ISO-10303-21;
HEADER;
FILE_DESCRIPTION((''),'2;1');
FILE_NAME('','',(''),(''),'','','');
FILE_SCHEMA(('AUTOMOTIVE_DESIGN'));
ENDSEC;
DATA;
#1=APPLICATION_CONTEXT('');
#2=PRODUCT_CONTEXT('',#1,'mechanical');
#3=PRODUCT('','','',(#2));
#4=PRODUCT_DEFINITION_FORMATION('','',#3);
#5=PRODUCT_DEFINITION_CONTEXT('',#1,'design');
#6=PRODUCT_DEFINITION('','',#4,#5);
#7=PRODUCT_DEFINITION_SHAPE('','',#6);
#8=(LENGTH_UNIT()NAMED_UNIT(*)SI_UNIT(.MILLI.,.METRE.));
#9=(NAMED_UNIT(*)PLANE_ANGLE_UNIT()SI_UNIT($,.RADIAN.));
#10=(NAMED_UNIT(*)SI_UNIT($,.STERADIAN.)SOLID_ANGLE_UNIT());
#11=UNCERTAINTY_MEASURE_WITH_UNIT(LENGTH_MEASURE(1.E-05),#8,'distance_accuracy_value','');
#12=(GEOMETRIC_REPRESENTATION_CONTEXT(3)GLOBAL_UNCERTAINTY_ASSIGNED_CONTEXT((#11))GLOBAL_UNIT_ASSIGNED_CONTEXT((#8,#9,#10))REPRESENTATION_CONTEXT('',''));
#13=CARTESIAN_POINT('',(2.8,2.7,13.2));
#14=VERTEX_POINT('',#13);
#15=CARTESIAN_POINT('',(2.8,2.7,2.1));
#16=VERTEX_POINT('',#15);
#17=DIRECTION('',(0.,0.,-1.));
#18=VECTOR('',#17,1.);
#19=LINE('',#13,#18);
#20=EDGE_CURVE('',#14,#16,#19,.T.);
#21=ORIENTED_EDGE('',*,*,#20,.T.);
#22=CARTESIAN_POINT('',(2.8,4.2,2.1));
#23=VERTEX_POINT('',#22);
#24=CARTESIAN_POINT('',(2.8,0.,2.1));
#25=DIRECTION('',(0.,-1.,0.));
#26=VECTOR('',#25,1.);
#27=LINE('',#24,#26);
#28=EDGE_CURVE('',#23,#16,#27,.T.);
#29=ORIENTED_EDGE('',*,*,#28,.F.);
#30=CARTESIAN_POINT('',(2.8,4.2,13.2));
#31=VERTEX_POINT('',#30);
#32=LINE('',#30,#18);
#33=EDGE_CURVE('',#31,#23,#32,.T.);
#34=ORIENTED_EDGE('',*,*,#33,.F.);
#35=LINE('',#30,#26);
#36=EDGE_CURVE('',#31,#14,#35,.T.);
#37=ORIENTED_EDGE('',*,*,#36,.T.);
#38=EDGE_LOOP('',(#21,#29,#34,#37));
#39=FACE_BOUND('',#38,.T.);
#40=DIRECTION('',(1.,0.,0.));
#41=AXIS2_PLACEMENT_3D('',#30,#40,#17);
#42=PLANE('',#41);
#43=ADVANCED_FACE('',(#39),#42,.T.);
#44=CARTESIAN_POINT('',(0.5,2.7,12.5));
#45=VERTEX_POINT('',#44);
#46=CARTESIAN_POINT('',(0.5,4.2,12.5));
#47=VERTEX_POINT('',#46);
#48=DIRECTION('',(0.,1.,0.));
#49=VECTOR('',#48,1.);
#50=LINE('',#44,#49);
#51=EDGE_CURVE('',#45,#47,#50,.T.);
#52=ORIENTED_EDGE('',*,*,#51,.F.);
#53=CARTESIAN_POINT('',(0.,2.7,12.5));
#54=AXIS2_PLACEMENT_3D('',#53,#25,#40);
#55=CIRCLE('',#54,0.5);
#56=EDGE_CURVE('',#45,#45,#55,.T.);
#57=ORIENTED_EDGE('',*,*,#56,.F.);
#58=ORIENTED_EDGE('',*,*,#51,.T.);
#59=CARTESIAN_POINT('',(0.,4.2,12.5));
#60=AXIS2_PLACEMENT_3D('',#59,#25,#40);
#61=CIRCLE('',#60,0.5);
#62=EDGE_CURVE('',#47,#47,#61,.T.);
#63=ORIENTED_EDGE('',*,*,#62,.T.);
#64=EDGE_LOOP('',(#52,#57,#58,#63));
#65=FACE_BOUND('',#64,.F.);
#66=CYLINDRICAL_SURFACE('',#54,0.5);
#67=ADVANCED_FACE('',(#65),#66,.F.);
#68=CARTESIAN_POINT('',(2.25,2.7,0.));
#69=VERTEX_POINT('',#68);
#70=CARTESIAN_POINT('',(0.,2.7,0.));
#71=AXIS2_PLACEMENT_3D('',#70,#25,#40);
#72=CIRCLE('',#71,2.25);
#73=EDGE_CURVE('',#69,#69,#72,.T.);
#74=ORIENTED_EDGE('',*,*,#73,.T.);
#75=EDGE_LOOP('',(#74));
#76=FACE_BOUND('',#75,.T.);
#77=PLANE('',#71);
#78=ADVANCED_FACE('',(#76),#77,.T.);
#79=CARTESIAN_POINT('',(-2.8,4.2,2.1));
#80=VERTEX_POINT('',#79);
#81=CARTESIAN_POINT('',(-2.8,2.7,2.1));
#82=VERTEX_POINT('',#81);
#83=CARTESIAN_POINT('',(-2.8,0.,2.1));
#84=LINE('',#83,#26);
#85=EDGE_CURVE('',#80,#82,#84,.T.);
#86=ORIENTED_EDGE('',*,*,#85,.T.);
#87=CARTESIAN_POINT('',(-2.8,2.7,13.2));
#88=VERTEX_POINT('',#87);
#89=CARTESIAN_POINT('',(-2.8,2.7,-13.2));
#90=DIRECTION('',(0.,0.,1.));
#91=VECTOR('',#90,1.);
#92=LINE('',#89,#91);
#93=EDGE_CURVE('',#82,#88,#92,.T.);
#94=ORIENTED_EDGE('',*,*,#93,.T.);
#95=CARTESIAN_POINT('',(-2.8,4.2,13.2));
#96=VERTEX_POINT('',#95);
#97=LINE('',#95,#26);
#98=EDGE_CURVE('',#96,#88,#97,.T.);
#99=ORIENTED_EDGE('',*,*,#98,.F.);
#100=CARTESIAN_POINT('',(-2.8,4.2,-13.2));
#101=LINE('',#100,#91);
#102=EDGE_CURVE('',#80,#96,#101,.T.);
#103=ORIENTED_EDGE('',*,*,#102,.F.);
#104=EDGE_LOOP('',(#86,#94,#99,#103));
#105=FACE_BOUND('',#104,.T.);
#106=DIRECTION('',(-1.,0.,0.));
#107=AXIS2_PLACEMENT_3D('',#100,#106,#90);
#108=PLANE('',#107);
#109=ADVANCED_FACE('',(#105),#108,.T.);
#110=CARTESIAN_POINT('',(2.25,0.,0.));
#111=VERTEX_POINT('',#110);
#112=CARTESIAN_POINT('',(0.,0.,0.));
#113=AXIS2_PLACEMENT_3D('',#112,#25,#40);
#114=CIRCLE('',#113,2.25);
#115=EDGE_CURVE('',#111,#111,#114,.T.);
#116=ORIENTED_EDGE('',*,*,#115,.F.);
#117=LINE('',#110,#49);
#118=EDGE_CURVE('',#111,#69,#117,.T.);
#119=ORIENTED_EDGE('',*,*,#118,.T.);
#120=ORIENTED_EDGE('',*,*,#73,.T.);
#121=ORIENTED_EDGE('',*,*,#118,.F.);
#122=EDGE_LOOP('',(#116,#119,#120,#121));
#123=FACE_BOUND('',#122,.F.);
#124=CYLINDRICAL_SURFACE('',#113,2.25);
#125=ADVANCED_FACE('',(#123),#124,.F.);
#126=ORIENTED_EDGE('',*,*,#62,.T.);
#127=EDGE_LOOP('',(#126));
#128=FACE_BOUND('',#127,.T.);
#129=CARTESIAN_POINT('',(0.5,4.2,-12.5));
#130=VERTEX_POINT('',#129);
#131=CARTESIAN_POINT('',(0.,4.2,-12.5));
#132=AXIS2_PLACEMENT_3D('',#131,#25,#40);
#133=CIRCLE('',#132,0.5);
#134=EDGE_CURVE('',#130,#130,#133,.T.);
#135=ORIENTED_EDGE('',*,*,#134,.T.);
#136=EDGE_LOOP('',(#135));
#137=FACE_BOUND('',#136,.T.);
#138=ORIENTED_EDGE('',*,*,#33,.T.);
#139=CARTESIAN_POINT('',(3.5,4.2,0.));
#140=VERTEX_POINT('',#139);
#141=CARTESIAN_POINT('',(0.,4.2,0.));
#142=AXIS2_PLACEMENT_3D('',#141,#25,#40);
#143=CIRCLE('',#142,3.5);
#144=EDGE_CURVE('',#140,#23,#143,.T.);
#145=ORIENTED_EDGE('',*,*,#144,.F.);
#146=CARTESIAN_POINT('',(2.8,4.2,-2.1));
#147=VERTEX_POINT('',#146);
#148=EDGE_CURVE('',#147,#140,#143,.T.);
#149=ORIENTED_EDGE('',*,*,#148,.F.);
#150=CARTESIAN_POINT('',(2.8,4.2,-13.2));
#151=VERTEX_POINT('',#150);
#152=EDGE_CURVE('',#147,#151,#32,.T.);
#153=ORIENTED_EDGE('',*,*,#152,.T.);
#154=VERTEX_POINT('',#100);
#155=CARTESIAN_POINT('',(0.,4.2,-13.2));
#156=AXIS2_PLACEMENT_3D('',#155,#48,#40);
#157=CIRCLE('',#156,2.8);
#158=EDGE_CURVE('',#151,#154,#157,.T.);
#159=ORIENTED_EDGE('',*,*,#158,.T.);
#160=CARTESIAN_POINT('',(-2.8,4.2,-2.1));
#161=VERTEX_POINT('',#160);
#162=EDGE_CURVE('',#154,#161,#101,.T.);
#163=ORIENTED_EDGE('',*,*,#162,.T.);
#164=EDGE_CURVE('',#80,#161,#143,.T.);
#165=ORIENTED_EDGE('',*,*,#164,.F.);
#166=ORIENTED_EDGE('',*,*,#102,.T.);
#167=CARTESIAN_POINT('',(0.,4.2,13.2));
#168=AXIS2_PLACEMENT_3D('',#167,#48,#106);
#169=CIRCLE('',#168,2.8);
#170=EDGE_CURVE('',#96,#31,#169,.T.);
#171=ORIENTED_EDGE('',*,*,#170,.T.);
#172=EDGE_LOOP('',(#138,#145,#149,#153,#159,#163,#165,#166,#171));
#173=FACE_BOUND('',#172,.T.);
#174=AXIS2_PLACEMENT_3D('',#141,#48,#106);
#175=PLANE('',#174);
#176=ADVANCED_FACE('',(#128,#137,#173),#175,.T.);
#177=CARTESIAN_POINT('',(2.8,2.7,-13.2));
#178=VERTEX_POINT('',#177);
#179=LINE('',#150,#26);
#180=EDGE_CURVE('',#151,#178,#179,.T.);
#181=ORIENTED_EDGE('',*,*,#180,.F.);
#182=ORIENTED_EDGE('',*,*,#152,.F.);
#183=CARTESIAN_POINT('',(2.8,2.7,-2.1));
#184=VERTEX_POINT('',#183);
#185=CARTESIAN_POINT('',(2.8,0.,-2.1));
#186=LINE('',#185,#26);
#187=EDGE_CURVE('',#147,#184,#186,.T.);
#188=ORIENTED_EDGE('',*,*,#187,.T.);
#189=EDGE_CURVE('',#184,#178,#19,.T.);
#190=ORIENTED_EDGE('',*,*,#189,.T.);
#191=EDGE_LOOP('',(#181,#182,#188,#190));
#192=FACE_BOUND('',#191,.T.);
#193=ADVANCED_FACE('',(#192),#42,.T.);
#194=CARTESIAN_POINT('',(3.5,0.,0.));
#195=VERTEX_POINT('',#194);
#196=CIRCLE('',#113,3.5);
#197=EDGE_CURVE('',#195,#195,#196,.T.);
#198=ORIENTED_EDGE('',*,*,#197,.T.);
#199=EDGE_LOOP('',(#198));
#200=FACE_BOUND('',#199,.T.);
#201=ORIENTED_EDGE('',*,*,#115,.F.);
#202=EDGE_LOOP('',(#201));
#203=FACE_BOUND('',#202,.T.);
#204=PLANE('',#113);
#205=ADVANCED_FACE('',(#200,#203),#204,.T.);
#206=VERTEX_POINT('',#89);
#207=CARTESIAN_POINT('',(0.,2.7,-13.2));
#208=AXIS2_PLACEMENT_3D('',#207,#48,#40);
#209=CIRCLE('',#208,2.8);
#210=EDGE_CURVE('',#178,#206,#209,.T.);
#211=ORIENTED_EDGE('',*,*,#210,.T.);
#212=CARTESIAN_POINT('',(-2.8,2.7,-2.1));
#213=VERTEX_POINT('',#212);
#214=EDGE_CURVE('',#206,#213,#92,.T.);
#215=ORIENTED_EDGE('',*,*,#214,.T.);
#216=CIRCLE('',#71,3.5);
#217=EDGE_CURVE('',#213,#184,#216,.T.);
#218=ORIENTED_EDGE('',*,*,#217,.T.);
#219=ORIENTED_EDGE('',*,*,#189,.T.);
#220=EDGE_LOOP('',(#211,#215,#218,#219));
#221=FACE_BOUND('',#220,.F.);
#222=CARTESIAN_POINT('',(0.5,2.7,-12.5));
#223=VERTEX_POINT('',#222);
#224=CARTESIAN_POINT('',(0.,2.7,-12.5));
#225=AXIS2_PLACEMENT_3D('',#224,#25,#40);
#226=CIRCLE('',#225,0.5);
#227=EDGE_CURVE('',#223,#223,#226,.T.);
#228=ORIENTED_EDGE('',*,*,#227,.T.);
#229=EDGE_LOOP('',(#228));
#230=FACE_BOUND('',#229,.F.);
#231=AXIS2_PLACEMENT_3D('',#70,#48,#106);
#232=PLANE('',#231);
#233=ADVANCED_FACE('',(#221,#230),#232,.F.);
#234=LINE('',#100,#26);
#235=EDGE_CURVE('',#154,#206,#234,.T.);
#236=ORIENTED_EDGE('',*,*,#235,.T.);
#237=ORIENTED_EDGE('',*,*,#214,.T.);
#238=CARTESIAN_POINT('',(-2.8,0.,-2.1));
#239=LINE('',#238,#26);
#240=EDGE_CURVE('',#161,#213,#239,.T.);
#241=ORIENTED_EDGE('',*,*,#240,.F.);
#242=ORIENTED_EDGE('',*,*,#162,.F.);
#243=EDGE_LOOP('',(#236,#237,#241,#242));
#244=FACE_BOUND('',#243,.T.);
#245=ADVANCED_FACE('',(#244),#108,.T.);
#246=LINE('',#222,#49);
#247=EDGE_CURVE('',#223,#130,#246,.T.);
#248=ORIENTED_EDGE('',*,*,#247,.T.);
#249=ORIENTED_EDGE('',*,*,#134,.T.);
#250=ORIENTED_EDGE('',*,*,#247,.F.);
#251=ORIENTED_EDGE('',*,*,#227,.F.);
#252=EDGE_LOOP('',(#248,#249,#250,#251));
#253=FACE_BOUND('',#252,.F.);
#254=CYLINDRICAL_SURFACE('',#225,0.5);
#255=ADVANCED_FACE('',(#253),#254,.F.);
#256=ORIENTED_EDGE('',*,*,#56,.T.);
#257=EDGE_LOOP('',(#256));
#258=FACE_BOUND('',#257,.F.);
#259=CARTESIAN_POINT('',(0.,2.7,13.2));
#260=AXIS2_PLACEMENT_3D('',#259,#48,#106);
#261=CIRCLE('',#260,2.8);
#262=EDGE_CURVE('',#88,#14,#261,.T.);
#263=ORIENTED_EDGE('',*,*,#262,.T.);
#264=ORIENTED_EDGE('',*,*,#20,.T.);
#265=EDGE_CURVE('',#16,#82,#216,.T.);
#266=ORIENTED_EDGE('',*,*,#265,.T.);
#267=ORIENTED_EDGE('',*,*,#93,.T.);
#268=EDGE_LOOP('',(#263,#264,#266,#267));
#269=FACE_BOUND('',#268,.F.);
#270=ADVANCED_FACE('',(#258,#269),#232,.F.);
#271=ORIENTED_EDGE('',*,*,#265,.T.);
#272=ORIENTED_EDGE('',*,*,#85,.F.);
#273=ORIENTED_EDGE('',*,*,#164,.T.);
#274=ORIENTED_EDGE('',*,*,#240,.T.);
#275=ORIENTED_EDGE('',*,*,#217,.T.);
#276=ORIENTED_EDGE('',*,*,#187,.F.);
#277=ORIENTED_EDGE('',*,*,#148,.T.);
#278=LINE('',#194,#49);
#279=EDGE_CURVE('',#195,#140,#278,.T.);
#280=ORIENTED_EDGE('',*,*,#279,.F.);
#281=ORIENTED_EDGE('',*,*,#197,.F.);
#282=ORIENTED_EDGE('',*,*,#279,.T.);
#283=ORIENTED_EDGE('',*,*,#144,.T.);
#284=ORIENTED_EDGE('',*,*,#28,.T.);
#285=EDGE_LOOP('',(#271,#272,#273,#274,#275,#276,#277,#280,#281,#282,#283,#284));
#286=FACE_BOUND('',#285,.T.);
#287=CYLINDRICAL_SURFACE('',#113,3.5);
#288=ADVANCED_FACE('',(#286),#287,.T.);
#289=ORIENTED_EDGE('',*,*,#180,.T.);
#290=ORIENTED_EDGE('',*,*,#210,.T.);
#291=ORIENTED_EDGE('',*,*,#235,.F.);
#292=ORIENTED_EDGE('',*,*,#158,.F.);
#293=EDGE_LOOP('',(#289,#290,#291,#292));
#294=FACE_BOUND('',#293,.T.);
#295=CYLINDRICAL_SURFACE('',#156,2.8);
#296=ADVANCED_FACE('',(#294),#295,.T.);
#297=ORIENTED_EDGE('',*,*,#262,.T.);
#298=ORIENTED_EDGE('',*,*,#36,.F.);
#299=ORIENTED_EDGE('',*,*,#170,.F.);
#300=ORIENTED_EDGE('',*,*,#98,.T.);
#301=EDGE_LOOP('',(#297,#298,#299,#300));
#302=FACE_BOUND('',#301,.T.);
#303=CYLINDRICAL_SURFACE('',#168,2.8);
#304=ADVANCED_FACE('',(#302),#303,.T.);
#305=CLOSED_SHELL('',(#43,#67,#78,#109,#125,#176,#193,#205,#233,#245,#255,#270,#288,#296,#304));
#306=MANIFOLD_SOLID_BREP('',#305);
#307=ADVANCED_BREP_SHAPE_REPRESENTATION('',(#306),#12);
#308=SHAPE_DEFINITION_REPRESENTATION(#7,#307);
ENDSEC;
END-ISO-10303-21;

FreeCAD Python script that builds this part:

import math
import FreeCAD as App
import Part
import Sketcher
Q = App.Units.Quantity

doc = App.newDocument("Part")
params = doc.addObject("Spreadsheet::Sheet", "Params")
for row, (alias, value) in enumerate([
    ("sketch1_diameter", "7 mm"),
    ("pad1_length", "4.2 mm"),
    ("sketch2_radius", "2.8 mm"),
    ("sketch2_height", "26.4 mm"),
    ("pad2_length", "1.5 mm"),
    ("sketch3_diameter", "1 mm"),
    ("pocket1_length", "25 mm"),
    ("sketch4_diameter", "4.5 mm"),
    ("pocket2_length", "2.7 mm"),
], start=1):
    params.set(f"A{row}", alias)
    params.set(f"B{row}", "=" + value)
    params.setAlias(f"B{row}", alias)

body = doc.addObject("PartDesign::Body", "Body")

sketch1 = body.newObject("Sketcher::SketchObject", "Sketch")
sketch1.AttachmentSupport = (doc.getObject("XZ_Plane"), [""])
sketch1.MapMode = "FlatFace"
sketch1.addGeometry(Part.Circle(App.Vector(0, 0, 0), App.Vector(0, 0, 1), 3.5), False)
sketch1.addConstraint([
    Sketcher.Constraint("Coincident", 0, 3, -1, 1),
    Sketcher.Constraint("Diameter", 0, Q("7 mm")),
])
sketch1.setExpression("Constraints[1]", "Params.sketch1_diameter")
pad1 = body.newObject("PartDesign::Pad", "Pad")
pad1.Profile = sketch1
pad1.setExpression("Length", "Params.pad1_length")
pad1.Reversed = True

sketch2 = body.newObject("Sketcher::SketchObject", "Sketch001")
sketch2.AttachmentSupport = (doc.getObject("XZ_Plane"), [""])
sketch2.MapMode = "FlatFace"
sketch2.AttachmentOffset = App.Placement(App.Vector(0, 0, -4.2), App.Rotation())
sketch2.addGeometry([
    Part.ArcOfCircle(Part.Circle(App.Vector(0, 13.2, 0), App.Vector(0, 0, 1), 2.8), math.radians(0), math.radians(180)),
    Part.LineSegment(App.Vector(2.8, 13.2, 0), App.Vector(2.8, -13.2, 0)),
    Part.ArcOfCircle(Part.Circle(App.Vector(0, -13.2, 0), App.Vector(0, 0, 1), 2.8), math.radians(180), math.radians(360)),
    Part.LineSegment(App.Vector(-2.8, -13.2, 0), App.Vector(-2.8, 13.2, 0)),
], False)
sketch2.addConstraint([
    Sketcher.Constraint("Tangent", 0, 1, 1, 1),
    Sketcher.Constraint("Tangent", 1, 2, 2, 2),
    Sketcher.Constraint("Tangent", 2, 1, 3, 1),
    Sketcher.Constraint("Tangent", 3, 2, 0, 2),
    Sketcher.Constraint("Vertical", 1),
    Sketcher.Constraint("Vertical", 3),
    Sketcher.Constraint("Symmetric", 0, 3, 2, 3, -1, 1),
    Sketcher.Constraint("Radius", 0, Q("2.8 mm")),
    Sketcher.Constraint("DistanceY", 1, 2, 1, 1, Q("26.4 mm")),
])
sketch2.setExpression("Constraints[7]", "Params.sketch2_radius")
sketch2.setExpression("Constraints[8]", "Params.sketch2_height")
pad2 = body.newObject("PartDesign::Pad", "Pad001")
pad2.Profile = sketch2
pad2.setExpression("Length", "Params.pad2_length")

sketch3 = body.newObject("Sketcher::SketchObject", "Sketch002")
sketch3.AttachmentSupport = (doc.getObject("XZ_Plane"), [""])
sketch3.MapMode = "FlatFace"
sketch3.AttachmentOffset = App.Placement(App.Vector(0, 0, -2.7), App.Rotation())
sketch3.addGeometry([
    Part.Circle(App.Vector(0, 12.5, 0), App.Vector(0, 0, 1), 0.5),
    Part.Circle(App.Vector(0, -12.5, 0), App.Vector(0, 0, 1), 0.5),
], False)
sketch3.addConstraint([
    Sketcher.Constraint("Equal", 0, 1),
    Sketcher.Constraint("Symmetric", 0, 3, 1, 3, -1, 1),
    Sketcher.Constraint("PointOnObject", 0, 3, -2),
    Sketcher.Constraint("Diameter", 0, Q("1 mm")),
    Sketcher.Constraint("DistanceY", 1, 3, 0, 3, Q("25 mm")),
])
sketch3.setExpression("Constraints[3]", "Params.sketch3_diameter")
pocket1 = body.newObject("PartDesign::Pocket", "Pocket")
pocket1.Profile = sketch3
pocket1.setExpression("Length", "Params.pocket1_length")

sketch4 = body.newObject("Sketcher::SketchObject", "Sketch003")
sketch4.AttachmentSupport = (doc.getObject("XZ_Plane"), [""])
sketch4.MapMode = "FlatFace"
sketch4.addGeometry(Part.Circle(App.Vector(0, 0, 0), App.Vector(0, 0, 1), 2.2), False)
sketch4.addConstraint([
    Sketcher.Constraint("Coincident", 0, 3, -1, 1),
    Sketcher.Constraint("Diameter", 0, Q("4.5 mm")),
])
sketch4.setExpression("Constraints[1]", "Params.sketch4_diameter")
pocket2 = body.newObject("PartDesign::Pocket", "Pocket001")
pocket2.Profile = sketch4
pocket2.setExpression("Length", "Params.pocket2_length")

doc.recompute()
